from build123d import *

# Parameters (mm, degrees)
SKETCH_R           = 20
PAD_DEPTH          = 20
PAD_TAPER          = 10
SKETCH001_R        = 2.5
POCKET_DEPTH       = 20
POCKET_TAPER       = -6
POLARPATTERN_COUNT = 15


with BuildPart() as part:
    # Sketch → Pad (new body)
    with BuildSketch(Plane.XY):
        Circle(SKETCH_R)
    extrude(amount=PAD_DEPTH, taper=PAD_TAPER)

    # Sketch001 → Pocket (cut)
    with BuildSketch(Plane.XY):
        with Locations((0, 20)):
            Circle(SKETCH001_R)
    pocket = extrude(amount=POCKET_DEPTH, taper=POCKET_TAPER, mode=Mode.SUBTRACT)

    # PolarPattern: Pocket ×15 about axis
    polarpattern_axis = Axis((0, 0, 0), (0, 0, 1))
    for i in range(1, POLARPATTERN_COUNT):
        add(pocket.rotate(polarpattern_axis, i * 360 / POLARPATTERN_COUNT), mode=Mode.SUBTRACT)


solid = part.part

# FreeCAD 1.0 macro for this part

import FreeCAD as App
import Part
import Sketcher
Q = App.Units.Quantity

doc = App.newDocument("Part")
params = doc.addObject("Spreadsheet::Sheet", "Params")
for row, (alias, value) in enumerate([
    ("sketch1_diameter", "40 mm"),
    ("pad1_length", "20 mm"),
    ("pad1_taper", "-10 deg"),
    ("sketch2_diameter", "5 mm"),
    ("pocket1_length", "20 mm"),
    ("pocket1_taper", "6 deg"),
], start=1):
    params.set(f"A{row}", alias)
    params.set(f"B{row}", "=" + value)
    params.setAlias(f"B{row}", alias)

body = doc.addObject("PartDesign::Body", "Body")

# Sketch on XY plane
sketch1 = body.newObject("Sketcher::SketchObject", "Sketch")
sketch1.AttachmentSupport = (doc.getObject("XY_Plane"), [""])
sketch1.MapMode = "FlatFace"
sketch1.addGeometry(Part.Circle(App.Vector(0, 0, 0), App.Vector(0, 0, 1), 20), False)
sketch1.addConstraint([
    Sketcher.Constraint("Coincident", 0, 3, -1, 1),
    Sketcher.Constraint("Diameter", 0, Q("40 mm")),
])
sketch1.setExpression("Constraints[1]", "Params.sketch1_diameter")
pad1 = body.newObject("PartDesign::Pad", "Pad")
pad1.Profile = sketch1
pad1.setExpression("Length", "Params.pad1_length")
pad1.setExpression("TaperAngle", "Params.pad1_taper")

# Sketch on XY plane
sketch2 = body.newObject("Sketcher::SketchObject", "Sketch001")
sketch2.AttachmentSupport = (doc.getObject("XY_Plane"), [""])
sketch2.MapMode = "FlatFace"
sketch2.addGeometry(Part.Circle(App.Vector(0, 20, 0), App.Vector(0, 0, 1), 2.5), False)
sketch2.addConstraint([
    Sketcher.Constraint("PointOnObject", 0, 3, -2),
    Sketcher.Constraint("Diameter", 0, Q("5 mm")),
    Sketcher.Constraint("DistanceY", -1, 1, 0, 3, Q("20 mm")),
])
sketch2.setExpression("Constraints[1]", "Params.sketch2_diameter")
pocket1 = body.newObject("PartDesign::Pocket", "Pocket")
pocket1.Profile = sketch2
pocket1.setExpression("Length", "Params.pocket1_length")
pocket1.Reversed = True
pocket1.setExpression("TaperAngle", "Params.pocket1_taper")
doc.recompute()

polarpattern = body.newObject("PartDesign::PolarPattern", "PolarPattern")
polarpattern.Originals = [pocket1]
polarpattern.Axis = (doc.getObject("Z_Axis"), [""])
polarpattern.Angle = 360
polarpattern.Occurrences = 15
body.Tip = polarpattern

doc.recompute()
